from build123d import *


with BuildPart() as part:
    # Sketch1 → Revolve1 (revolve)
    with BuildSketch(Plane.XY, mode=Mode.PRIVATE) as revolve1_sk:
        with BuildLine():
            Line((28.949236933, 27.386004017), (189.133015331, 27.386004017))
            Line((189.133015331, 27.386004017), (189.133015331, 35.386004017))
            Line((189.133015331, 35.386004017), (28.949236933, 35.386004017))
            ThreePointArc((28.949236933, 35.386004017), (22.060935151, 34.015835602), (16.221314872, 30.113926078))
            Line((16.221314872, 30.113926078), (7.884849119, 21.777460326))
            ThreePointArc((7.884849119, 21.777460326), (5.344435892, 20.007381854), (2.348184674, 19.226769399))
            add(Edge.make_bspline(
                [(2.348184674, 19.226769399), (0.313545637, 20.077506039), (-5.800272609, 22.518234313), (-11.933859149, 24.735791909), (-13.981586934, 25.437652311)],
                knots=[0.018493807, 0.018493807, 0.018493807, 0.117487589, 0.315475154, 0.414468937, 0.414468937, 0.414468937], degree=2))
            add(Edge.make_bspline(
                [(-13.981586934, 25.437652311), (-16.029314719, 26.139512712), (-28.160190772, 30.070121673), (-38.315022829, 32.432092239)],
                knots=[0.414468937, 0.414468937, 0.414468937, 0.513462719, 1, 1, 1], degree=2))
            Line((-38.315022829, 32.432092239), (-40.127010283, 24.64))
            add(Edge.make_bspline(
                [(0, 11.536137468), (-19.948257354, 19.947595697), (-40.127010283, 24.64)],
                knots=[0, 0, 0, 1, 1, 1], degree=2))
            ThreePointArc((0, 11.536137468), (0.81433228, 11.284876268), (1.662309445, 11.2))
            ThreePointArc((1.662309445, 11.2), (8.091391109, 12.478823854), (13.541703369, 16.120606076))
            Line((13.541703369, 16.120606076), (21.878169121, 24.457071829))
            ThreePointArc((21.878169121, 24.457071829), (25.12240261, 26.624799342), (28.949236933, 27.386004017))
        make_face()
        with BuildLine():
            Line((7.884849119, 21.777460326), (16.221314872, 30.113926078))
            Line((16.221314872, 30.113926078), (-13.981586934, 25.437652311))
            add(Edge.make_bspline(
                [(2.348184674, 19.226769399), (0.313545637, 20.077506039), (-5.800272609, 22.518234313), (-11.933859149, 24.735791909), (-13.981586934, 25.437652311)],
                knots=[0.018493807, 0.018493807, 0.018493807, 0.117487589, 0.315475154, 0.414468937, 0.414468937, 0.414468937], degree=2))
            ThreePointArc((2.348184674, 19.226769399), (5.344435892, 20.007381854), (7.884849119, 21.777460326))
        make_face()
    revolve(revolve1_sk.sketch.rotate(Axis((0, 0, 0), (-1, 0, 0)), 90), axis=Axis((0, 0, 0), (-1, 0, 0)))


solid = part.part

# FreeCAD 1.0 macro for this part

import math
import FreeCAD as App
import Part
import Sketcher
Q = App.Units.Quantity

doc = App.newDocument("Part")
body = doc.addObject("PartDesign::Body", "Body")

# Sketch on XY plane
sketch1 = doc.addObject("Sketcher::SketchObject", "Sketch")
body.addObject(sketch1)
sketch1.AttachmentSupport = (doc.XY_Plane, [""])
sketch1.MapMode = "FlatFace"
sketch1.addGeometry(Part.LineSegment(App.Vector(28.949237, 27.386004, 0), App.Vector(189.133015, 27.386004, 0)), False)
sketch1.addGeometry(Part.LineSegment(App.Vector(189.133015, 27.386004, 0), App.Vector(189.133015, 35.386004, 0)), False)
sketch1.addGeometry(Part.LineSegment(App.Vector(189.133015, 35.386004, 0), App.Vector(28.949237, 35.386004, 0)), False)
sketch1.addGeometry(Part.ArcOfCircle(Part.Circle(App.Vector(28.949237, 17.386004, 0), App.Vector(0, 0, 1), 18), math.radians(90), math.radians(135)), False)
sketch1.addGeometry(Part.LineSegment(App.Vector(16.221315, 30.113926, 0), App.Vector(-13.981587, 25.437652, 0)), False)
sketch1.addGeometry(Part.BSplineCurve([App.Vector(-13.981587, 25.437652, 0), App.Vector(-16.029315, 26.139513, 0), App.Vector(-28.160191, 30.070122, 0), App.Vector(-38.315023, 32.432092, 0)], [3, 1, 3], [0.414468937, 0.513462719, 1], False, 2, [1, 1, 1, 1], False), False)
sketch1.addGeometry(Part.LineSegment(App.Vector(-38.315023, 32.432092, 0), App.Vector(-40.12701, 24.64, 0)), False)
sketch1.addGeometry(Part.BSplineCurve([App.Vector(0, 11.536137, 0), App.Vector(-19.948257, 19.947596, 0), App.Vector(-40.12701, 24.64, 0)], [3, 3], [0, 1], False, 2, [1, 1, 1], False), False)
sketch1.addGeometry(Part.ArcOfCircle(Part.Circle(App.Vector(1.662309, 15.4784, 0), App.Vector(0, 0, 1), 4.2784), math.radians(-112.863392), math.radians(-90)), False)
sketch1.addGeometry(Part.ArcOfCircle(Part.Circle(App.Vector(1.662309, 28, 0), App.Vector(0, 0, 1), 16.8), math.radians(-90), math.radians(-45)), False)
sketch1.addGeometry(Part.LineSegment(App.Vector(13.541703, 16.120606, 0), App.Vector(21.878169, 24.457072, 0)), False)
sketch1.addGeometry(Part.ArcOfCircle(Part.Circle(App.Vector(28.949237, 17.386004, 0), App.Vector(0, 0, 1), 10), math.radians(90), math.radians(135)), False)
sketch1.addConstraint(Sketcher.Constraint("Block", 5))
sketch1.addConstraint(Sketcher.Constraint("Block", 7))
sketch1.addConstraint(Sketcher.Constraint("Coincident", 0, 2, 1, 1))
sketch1.addConstraint(Sketcher.Constraint("Coincident", 1, 2, 2, 1))
sketch1.addConstraint(Sketcher.Constraint("Tangent", 2, 2, 3, 1))
sketch1.addConstraint(Sketcher.Constraint("Coincident", 3, 2, 4, 1))
sketch1.addConstraint(Sketcher.Constraint("Coincident", 4, 2, 5, 1))
sketch1.addConstraint(Sketcher.Constraint("Coincident", 5, 2, 6, 1))
sketch1.addConstraint(Sketcher.Constraint("Coincident", 6, 2, 7, 2))
sketch1.addConstraint(Sketcher.Constraint("Coincident", 7, 1, 8, 1))
sketch1.addConstraint(Sketcher.Constraint("Tangent", 8, 2, 9, 1))
sketch1.addConstraint(Sketcher.Constraint("Tangent", 9, 2, 10, 1))
sketch1.addConstraint(Sketcher.Constraint("Tangent", 10, 2, 11, 2))
sketch1.addConstraint(Sketcher.Constraint("Tangent", 11, 1, 0, 1))
sketch1.addConstraint(Sketcher.Constraint("Horizontal", 0))
sketch1.addConstraint(Sketcher.Constraint("Vertical", 1))
sketch1.addConstraint(Sketcher.Constraint("Horizontal", 2))
sketch1.addConstraint(Sketcher.Constraint("Coincident", 11, 3, 3, 3))
sketch1.addConstraint(Sketcher.Constraint("Vertical", 8, 3, 9, 3))
sketch1.addConstraint(Sketcher.Constraint("Radius", 3, 18.0))
sketch1.addConstraint(Sketcher.Constraint("Radius", 11, 10.0))
sketch1.addConstraint(Sketcher.Constraint("Radius", 9, 16.8))
sketch1.addConstraint(Sketcher.Constraint("Angle", 10, Q("45 deg")))
sketch1.addConstraint(Sketcher.Constraint("DistanceY", -1, 1, 9, 3, 28.0))
sketch1.addConstraint(Sketcher.Constraint("Radius", 8, 4.2784))
sketch1.addConstraint(Sketcher.Constraint("DistanceX", 0, 1, 0, 2, 160.183778))
sketch1.addConstraint(Sketcher.Constraint("DistanceX", 4, 2, 3, 2, 30.202902))
sketch1.addConstraint(Sketcher.Constraint("DistanceX", -1, 1, 10, 2, 21.878169))
revolution = doc.addObject("PartDesign::Revolution", "Revolution")
body.addObject(revolution)
revolution.Profile = sketch1
revolution.ReferenceAxis = (sketch1, ["H_Axis"])
revolution.Angle = 360

doc.recompute()
